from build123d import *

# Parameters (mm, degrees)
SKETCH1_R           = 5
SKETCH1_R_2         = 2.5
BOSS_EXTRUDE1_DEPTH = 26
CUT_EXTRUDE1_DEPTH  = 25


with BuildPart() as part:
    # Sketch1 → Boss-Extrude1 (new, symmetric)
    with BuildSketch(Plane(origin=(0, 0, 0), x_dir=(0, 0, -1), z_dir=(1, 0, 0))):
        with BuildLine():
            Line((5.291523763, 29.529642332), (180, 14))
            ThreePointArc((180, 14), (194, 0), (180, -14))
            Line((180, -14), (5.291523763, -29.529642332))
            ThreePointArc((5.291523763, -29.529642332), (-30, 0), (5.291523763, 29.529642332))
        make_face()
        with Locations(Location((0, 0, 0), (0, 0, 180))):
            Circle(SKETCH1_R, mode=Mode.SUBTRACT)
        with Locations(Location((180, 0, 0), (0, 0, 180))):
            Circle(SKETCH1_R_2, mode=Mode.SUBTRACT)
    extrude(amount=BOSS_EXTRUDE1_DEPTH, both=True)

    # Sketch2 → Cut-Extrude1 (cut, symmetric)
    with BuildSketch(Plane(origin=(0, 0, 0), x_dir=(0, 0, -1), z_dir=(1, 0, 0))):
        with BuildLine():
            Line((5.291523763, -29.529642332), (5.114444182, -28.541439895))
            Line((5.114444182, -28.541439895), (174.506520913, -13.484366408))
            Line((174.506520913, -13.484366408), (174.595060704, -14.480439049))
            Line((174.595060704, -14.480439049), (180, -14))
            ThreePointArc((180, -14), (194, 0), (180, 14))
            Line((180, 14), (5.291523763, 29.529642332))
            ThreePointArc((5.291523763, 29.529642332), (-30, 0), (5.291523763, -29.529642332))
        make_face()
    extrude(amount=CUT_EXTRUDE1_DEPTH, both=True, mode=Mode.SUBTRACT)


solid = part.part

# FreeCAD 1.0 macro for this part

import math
import FreeCAD as App
import Part
import Sketcher

doc = App.newDocument("Part")
body = doc.addObject("PartDesign::Body", "Body")

sketch1 = body.newObject("Sketcher::SketchObject", "Sketch")
sketch1.AttachmentSupport = (doc.getObject("YZ_Plane"), [""])
sketch1.MapMode = "FlatFace"
sketch1.addGeometry([
    Part.LineSegment(App.Vector(14, -180, 0), App.Vector(29.5, -5.3, 0)),
    Part.ArcOfCircle(Part.Circle(App.Vector(0, 0, 0), App.Vector(0, 0, 1), 30), math.radians(-10), math.radians(190)),
    Part.LineSegment(App.Vector(-29.5, -5.3, 0), App.Vector(-14, -180, 0)),
    Part.ArcOfCircle(Part.Circle(App.Vector(0, -180, 0), App.Vector(0, 0, 1), 14), math.radians(180), math.radians(360)),
    Part.Circle(App.Vector(0, -180, 0), App.Vector(0, 0, 1), 2.5),
    Part.Circle(App.Vector(0, 0, 0), App.Vector(0, 0, 1), 5),
], False)
sketch1.addConstraint([
    Sketcher.Constraint("Coincident", 0, 2, 1, 1),
    Sketcher.Constraint("Coincident", 1, 2, 2, 1),
    Sketcher.Constraint("Coincident", 2, 2, 3, 1),
    Sketcher.Constraint("Coincident", 3, 2, 0, 1),
    Sketcher.Constraint("Coincident", 1, 3, -1, 1),
    Sketcher.Constraint("Coincident", 5, 3, -1, 1),
    Sketcher.Constraint("Coincident", 4, 3, 3, 3),
    Sketcher.Constraint("Symmetric", 2, 2, 3, 2, -2),
    Sketcher.Constraint("Horizontal", 0, 2, 1, 2),
    Sketcher.Constraint("Horizontal", 4, 3, 2, 2),
    Sketcher.Constraint("Diameter", 4, 5.0),
    Sketcher.Constraint("Diameter", 5, 10.0),
    Sketcher.Constraint("Radius", 1, 30.0),
    Sketcher.Constraint("Radius", 3, 14.0),
    Sketcher.Constraint("DistanceY", 3, 3, -1, 1, 180.0),
    Sketcher.Constraint("Distance", 0, 175.397325),
])
pad1 = body.newObject("PartDesign::Pad", "Pad")
pad1.Profile = sketch1
pad1.Length = 52
pad1.Midplane = True

sketch2 = body.newObject("Sketcher::SketchObject", "Sketch001")
sketch2.AttachmentSupport = (doc.getObject("YZ_Plane"), [""])
sketch2.MapMode = "FlatFace"
sketch2.addGeometry([
    Part.LineSegment(App.Vector(-29.5, -5.3, 0), App.Vector(-28.5, -5.1, 0)),
    Part.LineSegment(App.Vector(-28.5, -5.1, 0), App.Vector(-13.5, -174.5, 0)),
    Part.LineSegment(App.Vector(-13.5, -174.5, 0), App.Vector(-14.5, -174.6, 0)),
    Part.LineSegment(App.Vector(-14.5, -174.6, 0), App.Vector(-14, -180, 0)),
    Part.ArcOfCircle(Part.Circle(App.Vector(0, -180, 0), App.Vector(0, 0, 1), 14), math.radians(180), math.radians(360)),
    Part.LineSegment(App.Vector(14, -180, 0), App.Vector(29.5, -5.3, 0)),
    Part.ArcOfCircle(Part.Circle(App.Vector(0, 0, 0), App.Vector(0, 0, 1), 30), math.radians(-10), math.radians(190)),
], False)
sketch2.addConstraint([
    Sketcher.Constraint("Coincident", 0, 2, 1, 1),
    Sketcher.Constraint("Coincident", 1, 2, 2, 1),
    Sketcher.Constraint("Coincident", 2, 2, 3, 1),
    Sketcher.Constraint("Coincident", 3, 2, 4, 1),
    Sketcher.Constraint("Coincident", 4, 2, 5, 1),
    Sketcher.Constraint("Coincident", 5, 2, 6, 1),
    Sketcher.Constraint("Coincident", 6, 2, 0, 1),
    Sketcher.Constraint("Coincident", 6, 3, -1, 1),
    Sketcher.Constraint("Symmetric", 3, 2, 4, 2, -2),
    Sketcher.Constraint("Perpendicular", 1, 2),
    Sketcher.Constraint("Perpendicular", 2, 3),
    Sketcher.Constraint("Horizontal", 4, 3, 3, 2),
    Sketcher.Constraint("Horizontal", 5, 2, 6, 2),
    Sketcher.Constraint("Radius", 4, 14.0),
    Sketcher.Constraint("Radius", 6, 30.0),
    Sketcher.Constraint("Distance", 2, 1.0),
    Sketcher.Constraint("DistanceY", 4, 3, -1, 1, 180.0),
    Sketcher.Constraint("DistanceX", 0, 2, 2, 2, 14.061001),
    Sketcher.Constraint("Distance", 3, 5.42625),
    Sketcher.Constraint("DistanceY", 5, 2, 0, 2, 0.17708),
    Sketcher.Constraint("DistanceX", 1, 2, 5, 2, 43.014009),
])
pocket1 = body.newObject("PartDesign::Pocket", "Pocket")
pocket1.Profile = sketch2
pocket1.Length = 50
pocket1.Midplane = True

doc.recompute()
